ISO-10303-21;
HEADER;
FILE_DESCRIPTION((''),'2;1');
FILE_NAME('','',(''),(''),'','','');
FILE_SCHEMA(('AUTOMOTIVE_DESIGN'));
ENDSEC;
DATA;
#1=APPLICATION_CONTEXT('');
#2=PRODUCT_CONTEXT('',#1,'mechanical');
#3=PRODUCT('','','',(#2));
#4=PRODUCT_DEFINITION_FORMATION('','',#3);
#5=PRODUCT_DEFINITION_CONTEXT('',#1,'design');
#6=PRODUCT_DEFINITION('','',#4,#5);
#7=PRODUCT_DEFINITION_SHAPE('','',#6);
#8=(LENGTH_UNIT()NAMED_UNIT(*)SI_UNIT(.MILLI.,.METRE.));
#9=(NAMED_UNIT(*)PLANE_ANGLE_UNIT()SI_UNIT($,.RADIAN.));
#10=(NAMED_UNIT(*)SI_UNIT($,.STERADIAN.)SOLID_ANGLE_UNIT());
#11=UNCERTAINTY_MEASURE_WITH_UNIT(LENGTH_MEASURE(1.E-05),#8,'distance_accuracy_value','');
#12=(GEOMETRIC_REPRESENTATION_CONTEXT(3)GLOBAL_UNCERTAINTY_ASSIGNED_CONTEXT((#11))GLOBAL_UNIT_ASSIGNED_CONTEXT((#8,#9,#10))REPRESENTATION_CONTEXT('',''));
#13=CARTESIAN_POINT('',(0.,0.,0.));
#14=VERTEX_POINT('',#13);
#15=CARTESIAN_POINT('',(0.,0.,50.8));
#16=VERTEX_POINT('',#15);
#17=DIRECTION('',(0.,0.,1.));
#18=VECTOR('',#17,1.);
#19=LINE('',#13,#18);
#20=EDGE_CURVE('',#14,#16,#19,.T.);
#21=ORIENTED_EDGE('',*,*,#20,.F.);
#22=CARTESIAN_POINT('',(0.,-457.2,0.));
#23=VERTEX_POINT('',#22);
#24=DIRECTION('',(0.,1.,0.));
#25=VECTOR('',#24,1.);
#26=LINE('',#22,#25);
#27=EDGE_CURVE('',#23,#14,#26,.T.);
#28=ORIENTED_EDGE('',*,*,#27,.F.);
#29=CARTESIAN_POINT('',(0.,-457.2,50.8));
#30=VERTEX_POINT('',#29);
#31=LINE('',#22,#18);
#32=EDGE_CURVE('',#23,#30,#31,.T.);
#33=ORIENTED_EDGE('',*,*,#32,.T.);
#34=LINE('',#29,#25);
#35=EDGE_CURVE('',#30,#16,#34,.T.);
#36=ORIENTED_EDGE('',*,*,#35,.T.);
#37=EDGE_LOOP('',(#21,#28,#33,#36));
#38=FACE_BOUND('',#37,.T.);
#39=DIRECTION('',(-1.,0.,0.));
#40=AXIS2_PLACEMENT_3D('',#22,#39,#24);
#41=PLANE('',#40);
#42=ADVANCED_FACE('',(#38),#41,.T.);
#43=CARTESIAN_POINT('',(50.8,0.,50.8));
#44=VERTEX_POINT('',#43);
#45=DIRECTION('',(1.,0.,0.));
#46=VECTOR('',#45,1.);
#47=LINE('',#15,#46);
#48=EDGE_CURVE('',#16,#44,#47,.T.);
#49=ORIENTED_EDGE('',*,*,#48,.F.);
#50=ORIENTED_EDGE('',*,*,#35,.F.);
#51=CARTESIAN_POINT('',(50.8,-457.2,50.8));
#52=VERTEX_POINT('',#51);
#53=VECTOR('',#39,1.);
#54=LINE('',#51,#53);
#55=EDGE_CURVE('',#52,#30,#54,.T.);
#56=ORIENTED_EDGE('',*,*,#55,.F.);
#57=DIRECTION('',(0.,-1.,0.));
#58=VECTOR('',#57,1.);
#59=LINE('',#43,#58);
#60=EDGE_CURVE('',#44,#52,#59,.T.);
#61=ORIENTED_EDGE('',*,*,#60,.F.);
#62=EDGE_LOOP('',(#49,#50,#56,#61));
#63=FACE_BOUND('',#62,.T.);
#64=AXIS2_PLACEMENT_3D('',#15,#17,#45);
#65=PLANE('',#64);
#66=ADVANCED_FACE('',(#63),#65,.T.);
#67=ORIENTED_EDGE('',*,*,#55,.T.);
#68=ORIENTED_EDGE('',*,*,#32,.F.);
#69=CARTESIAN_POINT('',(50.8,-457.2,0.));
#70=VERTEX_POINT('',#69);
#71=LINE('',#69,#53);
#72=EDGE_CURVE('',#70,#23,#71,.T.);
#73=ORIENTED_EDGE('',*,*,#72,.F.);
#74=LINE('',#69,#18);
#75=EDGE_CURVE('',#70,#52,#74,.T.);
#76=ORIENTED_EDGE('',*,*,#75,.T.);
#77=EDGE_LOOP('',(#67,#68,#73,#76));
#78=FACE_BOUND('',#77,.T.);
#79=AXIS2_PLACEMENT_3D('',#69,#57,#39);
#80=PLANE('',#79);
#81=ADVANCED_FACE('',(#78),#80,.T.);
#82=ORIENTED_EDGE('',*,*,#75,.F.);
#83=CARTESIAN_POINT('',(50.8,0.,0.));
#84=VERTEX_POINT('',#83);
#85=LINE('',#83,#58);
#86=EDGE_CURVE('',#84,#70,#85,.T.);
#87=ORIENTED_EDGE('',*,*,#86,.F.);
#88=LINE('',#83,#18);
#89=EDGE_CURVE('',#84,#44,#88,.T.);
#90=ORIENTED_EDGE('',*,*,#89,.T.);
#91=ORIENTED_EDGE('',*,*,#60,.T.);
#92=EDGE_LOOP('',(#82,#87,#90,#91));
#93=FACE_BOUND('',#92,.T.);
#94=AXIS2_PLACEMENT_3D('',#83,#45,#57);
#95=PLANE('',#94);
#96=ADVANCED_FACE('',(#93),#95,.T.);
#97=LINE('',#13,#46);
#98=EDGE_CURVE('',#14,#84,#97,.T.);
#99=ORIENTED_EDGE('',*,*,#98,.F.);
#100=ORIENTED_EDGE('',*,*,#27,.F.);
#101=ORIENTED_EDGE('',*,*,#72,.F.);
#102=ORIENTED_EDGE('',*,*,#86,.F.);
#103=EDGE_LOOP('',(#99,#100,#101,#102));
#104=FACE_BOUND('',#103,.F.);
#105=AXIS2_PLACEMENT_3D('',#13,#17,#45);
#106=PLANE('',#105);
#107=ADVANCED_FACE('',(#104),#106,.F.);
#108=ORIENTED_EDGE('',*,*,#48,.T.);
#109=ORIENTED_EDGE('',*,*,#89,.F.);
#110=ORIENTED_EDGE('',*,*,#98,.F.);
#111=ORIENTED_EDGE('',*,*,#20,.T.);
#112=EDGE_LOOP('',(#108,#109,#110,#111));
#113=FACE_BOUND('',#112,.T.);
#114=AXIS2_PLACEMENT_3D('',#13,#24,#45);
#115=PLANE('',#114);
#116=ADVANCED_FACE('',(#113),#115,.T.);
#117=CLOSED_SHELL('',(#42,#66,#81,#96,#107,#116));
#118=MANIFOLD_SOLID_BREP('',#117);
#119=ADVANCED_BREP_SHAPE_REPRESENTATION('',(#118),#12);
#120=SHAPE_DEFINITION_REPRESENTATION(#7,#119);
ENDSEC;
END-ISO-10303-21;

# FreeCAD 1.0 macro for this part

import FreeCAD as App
import Part
import Sketcher

V = App.Vector
Q = App.Units.Quantity

doc = App.newDocument("Part")
body = doc.addObject("PartDesign::Body", "Body")

# Sketch on XY plane
sketch1 = body.newObject("Sketcher::SketchObject", "Sketch")
sketch1.AttachmentSupport = (doc.getObject("XY_Plane"), [""])
sketch1.MapMode = "FlatFace"
sketch1.addGeometry(Part.LineSegment(V(51, 0, 0), V(0, 0, 0)), False)
sketch1.addGeometry(Part.LineSegment(V(0, 0, 0), V(0, -457, 0)), False)
sketch1.addGeometry(Part.LineSegment(V(0, -457, 0), V(51, -457, 0)), False)
sketch1.addGeometry(Part.LineSegment(V(51, -457, 0), V(51, 0, 0)), False)
sketch1.addConstraint(Sketcher.Constraint("Coincident", 0, 2, 1, 1))
sketch1.addConstraint(Sketcher.Constraint("Coincident", 1, 2, 2, 1))
sketch1.addConstraint(Sketcher.Constraint("Coincident", 2, 2, 3, 1))
sketch1.addConstraint(Sketcher.Constraint("Coincident", 3, 2, 0, 1))
sketch1.addConstraint(Sketcher.Constraint("Horizontal", 0))
sketch1.addConstraint(Sketcher.Constraint("Vertical", 1))
sketch1.addConstraint(Sketcher.Constraint("Horizontal", 2))
sketch1.addConstraint(Sketcher.Constraint("Vertical", 3))
sketch1.addConstraint(Sketcher.Constraint("Coincident", 0, 2, -1, 1))
sketch1.addConstraint(Sketcher.Constraint("DistanceX", 0, 2, 0, 1, Q("2 in")))
sketch1.addConstraint(Sketcher.Constraint("DistanceY", 1, 2, 1, 1, Q("18 in")))
pad1 = body.newObject("PartDesign::Pad", "Pad")
pad1.Profile = sketch1
pad1.Length = Q("2 in")

doc.recompute()
